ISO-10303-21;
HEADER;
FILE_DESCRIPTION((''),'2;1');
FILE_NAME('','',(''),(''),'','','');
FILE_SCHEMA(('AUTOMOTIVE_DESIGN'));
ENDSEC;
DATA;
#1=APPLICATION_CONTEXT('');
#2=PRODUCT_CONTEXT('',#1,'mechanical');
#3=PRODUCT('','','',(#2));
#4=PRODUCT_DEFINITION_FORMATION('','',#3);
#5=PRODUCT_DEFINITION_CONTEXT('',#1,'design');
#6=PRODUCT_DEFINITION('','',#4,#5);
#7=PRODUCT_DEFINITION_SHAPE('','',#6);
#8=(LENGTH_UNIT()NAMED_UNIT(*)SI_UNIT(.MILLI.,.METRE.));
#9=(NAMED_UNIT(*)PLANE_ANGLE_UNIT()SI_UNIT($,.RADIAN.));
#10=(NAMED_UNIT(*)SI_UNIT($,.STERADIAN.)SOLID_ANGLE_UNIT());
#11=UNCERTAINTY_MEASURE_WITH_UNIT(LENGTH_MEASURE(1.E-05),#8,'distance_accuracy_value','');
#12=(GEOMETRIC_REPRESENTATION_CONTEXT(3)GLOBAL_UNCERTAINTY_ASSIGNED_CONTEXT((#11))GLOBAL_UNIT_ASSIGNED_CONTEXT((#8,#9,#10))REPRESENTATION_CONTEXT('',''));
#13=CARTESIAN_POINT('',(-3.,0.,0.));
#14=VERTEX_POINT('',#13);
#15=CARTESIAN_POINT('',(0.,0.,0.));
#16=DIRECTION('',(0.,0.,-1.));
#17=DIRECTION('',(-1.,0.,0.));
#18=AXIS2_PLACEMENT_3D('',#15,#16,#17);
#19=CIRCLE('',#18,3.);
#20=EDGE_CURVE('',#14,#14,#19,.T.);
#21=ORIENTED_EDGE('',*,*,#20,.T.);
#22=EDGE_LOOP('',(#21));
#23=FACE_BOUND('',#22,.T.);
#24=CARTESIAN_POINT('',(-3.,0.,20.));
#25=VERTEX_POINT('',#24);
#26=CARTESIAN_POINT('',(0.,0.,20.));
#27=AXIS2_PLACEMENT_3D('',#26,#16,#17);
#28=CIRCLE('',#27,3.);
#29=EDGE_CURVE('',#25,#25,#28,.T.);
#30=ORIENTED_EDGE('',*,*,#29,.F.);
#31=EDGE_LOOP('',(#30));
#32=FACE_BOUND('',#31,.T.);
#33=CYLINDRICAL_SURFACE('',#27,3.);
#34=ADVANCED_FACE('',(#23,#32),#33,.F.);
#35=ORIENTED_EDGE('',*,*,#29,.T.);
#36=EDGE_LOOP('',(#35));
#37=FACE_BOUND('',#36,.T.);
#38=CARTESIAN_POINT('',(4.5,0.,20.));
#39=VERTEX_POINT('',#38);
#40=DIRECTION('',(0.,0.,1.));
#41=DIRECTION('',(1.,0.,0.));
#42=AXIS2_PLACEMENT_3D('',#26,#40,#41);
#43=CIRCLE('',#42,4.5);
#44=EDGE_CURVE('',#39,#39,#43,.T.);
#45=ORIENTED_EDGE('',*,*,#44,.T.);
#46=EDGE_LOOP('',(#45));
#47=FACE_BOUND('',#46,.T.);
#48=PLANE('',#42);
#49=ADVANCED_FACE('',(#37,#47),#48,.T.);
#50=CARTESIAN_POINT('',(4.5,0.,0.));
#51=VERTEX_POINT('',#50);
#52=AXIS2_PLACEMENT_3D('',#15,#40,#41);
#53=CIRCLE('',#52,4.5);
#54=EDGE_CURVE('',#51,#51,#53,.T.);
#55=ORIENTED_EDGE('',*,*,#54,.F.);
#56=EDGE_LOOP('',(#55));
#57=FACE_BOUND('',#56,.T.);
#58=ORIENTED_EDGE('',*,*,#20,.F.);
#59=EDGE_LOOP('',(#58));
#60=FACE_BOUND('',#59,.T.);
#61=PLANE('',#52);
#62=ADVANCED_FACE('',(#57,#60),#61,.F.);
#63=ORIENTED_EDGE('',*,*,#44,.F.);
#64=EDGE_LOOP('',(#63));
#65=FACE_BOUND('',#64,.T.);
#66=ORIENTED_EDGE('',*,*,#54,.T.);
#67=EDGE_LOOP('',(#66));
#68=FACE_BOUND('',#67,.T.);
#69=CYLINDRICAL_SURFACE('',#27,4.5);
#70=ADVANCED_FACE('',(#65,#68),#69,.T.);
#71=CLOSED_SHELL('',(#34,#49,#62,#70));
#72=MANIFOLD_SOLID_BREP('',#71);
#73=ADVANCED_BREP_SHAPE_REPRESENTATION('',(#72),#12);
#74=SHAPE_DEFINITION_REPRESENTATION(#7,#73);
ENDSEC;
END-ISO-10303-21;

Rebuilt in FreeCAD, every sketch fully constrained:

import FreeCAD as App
import Part
import Sketcher
Q = App.Units.Quantity

doc = App.newDocument("Part")
body = doc.addObject("PartDesign::Body", "Body")

# Sketch on XY plane
sketch1 = body.newObject("Sketcher::SketchObject", "Sketch")
sketch1.AttachmentSupport = (doc.getObject("XY_Plane"), [""])
sketch1.MapMode = "FlatFace"
sketch1.addGeometry(Part.Circle(App.Vector(0, 0, 0), App.Vector(0, 0, 1), 4.5), False)
sketch1.addConstraint(Sketcher.Constraint("Coincident", 0, 3, -1, 1))
sketch1.addConstraint(Sketcher.Constraint("Diameter", 0, Q("9 mm")))
pad1 = body.newObject("PartDesign::Pad", "Pad")
pad1.Profile = sketch1
pad1.Length = 20

# Sketch on XY plane
sketch2 = body.newObject("Sketcher::SketchObject", "Sketch001")
sketch2.AttachmentSupport = (doc.getObject("XY_Plane"), [""])
sketch2.MapMode = "FlatFace"
sketch2.addGeometry(Part.Circle(App.Vector(0, 0, 0), App.Vector(0, 0, 1), 3), False)
sketch2.addConstraint(Sketcher.Constraint("Coincident", 0, 3, -1, 1))
sketch2.addConstraint(Sketcher.Constraint("Diameter", 0, Q("6 mm")))
pocket1 = body.newObject("PartDesign::Pocket", "Pocket")
pocket1.Profile = sketch2
pocket1.Type = "ThroughAll"
pocket1.Reversed = True

doc.recompute()
